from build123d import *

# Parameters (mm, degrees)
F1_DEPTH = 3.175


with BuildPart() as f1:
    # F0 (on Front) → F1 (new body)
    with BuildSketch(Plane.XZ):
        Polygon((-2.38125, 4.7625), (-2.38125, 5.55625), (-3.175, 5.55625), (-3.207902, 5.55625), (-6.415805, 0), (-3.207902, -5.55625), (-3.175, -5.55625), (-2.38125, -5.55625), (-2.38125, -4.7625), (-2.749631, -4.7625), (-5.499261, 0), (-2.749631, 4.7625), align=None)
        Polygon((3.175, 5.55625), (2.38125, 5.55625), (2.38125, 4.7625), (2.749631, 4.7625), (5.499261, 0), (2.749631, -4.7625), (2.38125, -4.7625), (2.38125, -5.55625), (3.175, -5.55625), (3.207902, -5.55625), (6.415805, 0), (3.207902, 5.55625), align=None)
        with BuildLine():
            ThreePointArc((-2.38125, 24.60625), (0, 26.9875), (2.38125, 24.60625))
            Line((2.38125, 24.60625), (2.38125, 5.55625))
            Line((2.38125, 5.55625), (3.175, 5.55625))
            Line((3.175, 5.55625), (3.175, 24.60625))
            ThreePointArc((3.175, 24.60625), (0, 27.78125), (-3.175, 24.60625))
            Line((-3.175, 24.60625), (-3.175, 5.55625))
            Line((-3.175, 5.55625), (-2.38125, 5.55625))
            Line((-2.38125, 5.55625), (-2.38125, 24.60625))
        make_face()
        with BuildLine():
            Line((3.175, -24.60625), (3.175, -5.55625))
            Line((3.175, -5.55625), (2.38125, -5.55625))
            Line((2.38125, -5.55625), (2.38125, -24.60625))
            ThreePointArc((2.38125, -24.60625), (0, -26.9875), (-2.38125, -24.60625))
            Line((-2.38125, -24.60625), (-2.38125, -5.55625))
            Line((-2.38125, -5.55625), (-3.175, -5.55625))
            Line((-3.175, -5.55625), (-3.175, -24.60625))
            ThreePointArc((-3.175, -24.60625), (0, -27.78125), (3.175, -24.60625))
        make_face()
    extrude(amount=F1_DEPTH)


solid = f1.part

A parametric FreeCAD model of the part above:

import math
import FreeCAD as App
import Part
import Sketcher

V = App.Vector
Q = App.Units.Quantity

doc = App.newDocument("Part")
body = doc.addObject("PartDesign::Body", "Body")

# Sketch on XZ plane
sketch1 = doc.addObject("Sketcher::SketchObject", "Sketch")
body.addObject(sketch1)
sketch1.AttachmentSupport = (doc.XZ_Plane, [""])
sketch1.MapMode = "FlatFace"
sketch1.addGeometry([
    Part.LineSegment(V(3.175, -5.556, 0), V(3.208, -5.556, 0)),  # 0
    Part.LineSegment(V(3.208, -5.556, 0), V(6.416, 0, 0)),  # 1
    Part.LineSegment(V(6.416, 0, 0), V(3.208, 5.556, 0)),  # 2
    Part.LineSegment(V(3.208, 5.556, 0), V(3.175, 5.556, 0)),  # 3
    Part.LineSegment(V(3.175, 5.556, 0), V(3.175, 24.606, 0)),  # 4
    Part.ArcOfCircle(Part.Circle(V(0, 24.606, 0), V(0, 0, 1), 3.175), math.radians(0), math.radians(180)),  # 5
    Part.LineSegment(V(-3.175, 24.606, 0), V(-3.175, 5.556, 0)),  # 6
    Part.LineSegment(V(-3.175, 5.556, 0), V(-3.208, 5.556, 0)),  # 7
    Part.LineSegment(V(-3.208, 5.556, 0), V(-6.416, 0, 0)),  # 8
    Part.LineSegment(V(-6.416, 0, 0), V(-3.208, -5.556, 0)),  # 9
    Part.LineSegment(V(-3.208, -5.556, 0), V(-3.175, -5.556, 0)),  # 10
    Part.LineSegment(V(-3.175, -5.556, 0), V(-3.175, -24.606, 0)),  # 11
    Part.ArcOfCircle(Part.Circle(V(0, -24.606, 0), V(0, 0, 1), 3.175), math.radians(180), math.radians(360)),  # 12
    Part.LineSegment(V(3.175, -24.606, 0), V(3.175, -5.556, 0)),  # 13
    Part.LineSegment(V(-2.381, 4.763, 0), V(-2.381, 24.606, 0)),  # 14
    Part.ArcOfCircle(Part.Circle(V(0, 24.606, 0), V(0, 0, 1), 2.381), math.radians(0), math.radians(180)),  # 15
    Part.LineSegment(V(2.381, 24.606, 0), V(2.381, 4.763, 0)),  # 16
    Part.LineSegment(V(2.381, 4.763, 0), V(2.75, 4.763, 0)),  # 17
    Part.LineSegment(V(2.75, 4.763, 0), V(5.499, 0, 0)),  # 18
    Part.LineSegment(V(5.499, 0, 0), V(2.75, -4.763, 0)),  # 19
    Part.LineSegment(V(2.75, -4.763, 0), V(2.381, -4.763, 0)),  # 20
    Part.LineSegment(V(2.381, -4.763, 0), V(2.381, -24.606, 0)),  # 21
    Part.ArcOfCircle(Part.Circle(V(0, -24.606, 0), V(0, 0, 1), 2.381), math.radians(180), math.radians(360)),  # 22
    Part.LineSegment(V(-2.381, -24.606, 0), V(-2.381, -4.763, 0)),  # 23
    Part.LineSegment(V(-2.381, -4.763, 0), V(-2.75, -4.763, 0)),  # 24
    Part.LineSegment(V(-2.75, -4.763, 0), V(-5.499, 0, 0)),  # 25
    Part.LineSegment(V(-5.499, 0, 0), V(-2.75, 4.763, 0)),  # 26
    Part.LineSegment(V(-2.75, 4.763, 0), V(-2.381, 4.763, 0)),  # 27
], False)
sketch1.addConstraint([
    Sketcher.Constraint("Coincident", 0, 2, 1, 1),
    Sketcher.Constraint("Coincident", 1, 2, 2, 1),
    Sketcher.Constraint("Coincident", 2, 2, 3, 1),
    Sketcher.Constraint("Coincident", 3, 2, 4, 1),
    Sketcher.Constraint("Tangent", 4, 2, 5, 1),
    Sketcher.Constraint("Tangent", 5, 2, 6, 1),
    Sketcher.Constraint("Coincident", 6, 2, 7, 1),
    Sketcher.Constraint("Coincident", 7, 2, 8, 1),
    Sketcher.Constraint("Coincident", 8, 2, 9, 1),
    Sketcher.Constraint("Coincident", 9, 2, 10, 1),
    Sketcher.Constraint("Coincident", 10, 2, 11, 1),
    Sketcher.Constraint("Tangent", 11, 2, 12, 1),
    Sketcher.Constraint("Tangent", 12, 2, 13, 1),
    Sketcher.Constraint("Coincident", 13, 2, 0, 1),
    Sketcher.Constraint("Tangent", 14, 2, 15, 2),
    Sketcher.Constraint("Tangent", 15, 1, 16, 1),
    Sketcher.Constraint("Coincident", 16, 2, 17, 1),
    Sketcher.Constraint("Coincident", 17, 2, 18, 1),
    Sketcher.Constraint("Coincident", 18, 2, 19, 1),
    Sketcher.Constraint("Coincident", 19, 2, 20, 1),
    Sketcher.Constraint("Coincident", 20, 2, 21, 1),
    Sketcher.Constraint("Tangent", 21, 2, 22, 2),
    Sketcher.Constraint("Tangent", 22, 1, 23, 1),
    Sketcher.Constraint("Coincident", 23, 2, 24, 1),
    Sketcher.Constraint("Coincident", 24, 2, 25, 1),
    Sketcher.Constraint("Coincident", 25, 2, 26, 1),
    Sketcher.Constraint("Coincident", 26, 2, 27, 1),
    Sketcher.Constraint("Coincident", 27, 2, 14, 1),
    Sketcher.Constraint("Horizontal", 0),
    Sketcher.Constraint("Horizontal", 3),
    Sketcher.Constraint("Vertical", 4),
    Sketcher.Constraint("Vertical", 6),
    Sketcher.Constraint("Horizontal", 7),
    Sketcher.Constraint("Horizontal", 10),
    Sketcher.Constraint("Vertical", 11),
    Sketcher.Constraint("Vertical", 13),
    Sketcher.Constraint("Vertical", 14),
    Sketcher.Constraint("Vertical", 16),
    Sketcher.Constraint("Horizontal", 17),
    Sketcher.Constraint("Horizontal", 20),
    Sketcher.Constraint("Vertical", 21),
    Sketcher.Constraint("Vertical", 23),
    Sketcher.Constraint("Horizontal", 24),
    Sketcher.Constraint("Horizontal", 27),
    Sketcher.Constraint("Coincident", 15, 3, 5, 3),
    Sketcher.Constraint("Coincident", 22, 3, 12, 3),
    Sketcher.Constraint("Equal", 5, 12),
    Sketcher.Constraint("Equal", 15, 22),
    Sketcher.Constraint("Symmetric", 5, 3, 12, 3, -1, 1),
    Sketcher.Constraint("Symmetric", 0, 2, 7, 2, -1, 1),
    Sketcher.Constraint("Symmetric", 1, 2, 8, 2, -1, 1),
    Sketcher.Constraint("Symmetric", 2, 2, 9, 2, -1, 1),
    Sketcher.Constraint("Symmetric", 17, 2, 24, 2, -1, 1),
    Sketcher.Constraint("Symmetric", 18, 2, 25, 2, -1, 1),
    Sketcher.Constraint("Symmetric", 19, 2, 26, 2, -1, 1),
    Sketcher.Constraint("Symmetric", 3, 2, 6, 2, -2),
    Sketcher.Constraint("Symmetric", 19, 2, 24, 2, -2),
    Sketcher.Constraint("PointOnObject", 1, 2, -1),
    Sketcher.Constraint("PointOnObject", 18, 2, -1),
    Sketcher.Constraint("Parallel", 9, 18),
    Sketcher.Constraint("Parallel", 8, 19),
    Sketcher.Constraint("Angle", 1, Q("59.999996 deg")),
    Sketcher.Constraint("Radius", 5, Q("0.125 in")),
    Sketcher.Constraint("Radius", 15, Q("0.09375 in")),
    Sketcher.Constraint("DistanceY", 4, 1, 4, 2, Q("0.75 in")),
    Sketcher.Constraint("DistanceY", 14, 1, 14, 2, Q("0.78125 in")),
    Sketcher.Constraint("DistanceY", -1, 1, 5, 3, Q("0.96875 in")),
    Sketcher.Constraint("DistanceX", 0, 1, 0, 2, 0.032902),
    Sketcher.Constraint("DistanceX", 17, 1, 17, 2, 0.368381),
])
pad1 = doc.addObject("PartDesign::Pad", "Pad")
body.addObject(pad1)
pad1.Profile = sketch1
pad1.Length = Q("0.125 in")

doc.recompute()
